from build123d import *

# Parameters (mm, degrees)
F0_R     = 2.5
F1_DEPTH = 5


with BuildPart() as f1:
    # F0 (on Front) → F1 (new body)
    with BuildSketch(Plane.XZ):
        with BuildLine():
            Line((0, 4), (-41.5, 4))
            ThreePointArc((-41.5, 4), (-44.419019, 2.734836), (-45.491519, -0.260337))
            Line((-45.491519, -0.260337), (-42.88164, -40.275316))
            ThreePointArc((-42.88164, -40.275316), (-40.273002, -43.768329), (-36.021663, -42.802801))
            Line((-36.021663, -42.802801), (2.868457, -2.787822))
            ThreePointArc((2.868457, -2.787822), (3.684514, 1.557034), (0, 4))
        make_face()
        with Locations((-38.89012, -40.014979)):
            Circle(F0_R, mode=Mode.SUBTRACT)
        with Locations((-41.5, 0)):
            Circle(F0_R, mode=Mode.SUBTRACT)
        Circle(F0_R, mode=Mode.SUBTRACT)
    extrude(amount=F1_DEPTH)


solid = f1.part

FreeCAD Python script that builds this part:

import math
import FreeCAD as App
import Part
import Sketcher
from FreeCAD import Vector
Q = App.Units.Quantity

doc = App.newDocument("Part")
body = doc.addObject("PartDesign::Body", "Body")

sketch1 = body.newObject("Sketcher::SketchObject", "Sketch")
sketch1.AttachmentSupport = (doc.getObject("XZ_Plane"), [""])
sketch1.MapMode = "FlatFace"
sketch1.addGeometry(Part.LineSegment(Vector(0, 4, 0), Vector(-41.5, 4, 0)), False)
sketch1.addGeometry(Part.ArcOfCircle(Part.Circle(Vector(-41.5, 0, 0), Vector(0, 0, 1), 4), math.radians(90), math.radians(184)), False)
sketch1.addGeometry(Part.LineSegment(Vector(-45.5, -0.3, 0), Vector(-42.9, -40.3, 0)), False)
sketch1.addGeometry(Part.ArcOfCircle(Part.Circle(Vector(-38.9, -40, 0), Vector(0, 0, 1), 4), math.radians(-176), math.radians(-44)), False)
sketch1.addGeometry(Part.LineSegment(Vector(-36, -42.8, 0), Vector(2.9, -2.8, 0)), False)
sketch1.addGeometry(Part.ArcOfCircle(Part.Circle(Vector(0, 0, 0), Vector(0, 0, 1), 4), math.radians(-44), math.radians(90)), False)
sketch1.addGeometry(Part.Circle(Vector(-38.9, -40, 0), Vector(0, 0, 1), 2.5), False)
sketch1.addGeometry(Part.Circle(Vector(-41.5, 0, 0), Vector(0, 0, 1), 2.5), False)
sketch1.addGeometry(Part.Circle(Vector(0, 0, 0), Vector(0, 0, 1), 2.5), False)
sketch1.addConstraint(Sketcher.Constraint("Tangent", 0, 2, 1, 1))
sketch1.addConstraint(Sketcher.Constraint("Tangent", 1, 2, 2, 1))
sketch1.addConstraint(Sketcher.Constraint("Tangent", 2, 2, 3, 1))
sketch1.addConstraint(Sketcher.Constraint("Tangent", 3, 2, 4, 1))
sketch1.addConstraint(Sketcher.Constraint("Tangent", 4, 2, 5, 1))
sketch1.addConstraint(Sketcher.Constraint("Tangent", 5, 2, 0, 1))
sketch1.addConstraint(Sketcher.Constraint("Horizontal", 0))
sketch1.addConstraint(Sketcher.Constraint("Coincident", 5, 3, -1, 1))
sketch1.addConstraint(Sketcher.Constraint("Coincident", 8, 3, -1, 1))
sketch1.addConstraint(Sketcher.Constraint("Coincident", 6, 3, 3, 3))
sketch1.addConstraint(Sketcher.Constraint("Coincident", 7, 3, 1, 3))
sketch1.addConstraint(Sketcher.Constraint("Equal", 1, 3))
sketch1.addConstraint(Sketcher.Constraint("Equal", 3, 5))
sketch1.addConstraint(Sketcher.Constraint("Equal", 6, 7))
sketch1.addConstraint(Sketcher.Constraint("Equal", 7, 8))
sketch1.addConstraint(Sketcher.Constraint("Diameter", 6, Q("5 mm")))
sketch1.addConstraint(Sketcher.Constraint("Radius", 1, Q("4 mm")))
sketch1.addConstraint(Sketcher.Constraint("DistanceX", 0, 2, 0, 1, Q("41.5 mm")))
sketch1.addConstraint(Sketcher.Constraint("Distance", 2, Q("40.1 mm")))
sketch1.addConstraint(Sketcher.Constraint("Distance", 4, Q("55.8 mm")))
pad1 = body.newObject("PartDesign::Pad", "Pad")
pad1.Profile = sketch1
pad1.Length = 5

doc.recompute()
